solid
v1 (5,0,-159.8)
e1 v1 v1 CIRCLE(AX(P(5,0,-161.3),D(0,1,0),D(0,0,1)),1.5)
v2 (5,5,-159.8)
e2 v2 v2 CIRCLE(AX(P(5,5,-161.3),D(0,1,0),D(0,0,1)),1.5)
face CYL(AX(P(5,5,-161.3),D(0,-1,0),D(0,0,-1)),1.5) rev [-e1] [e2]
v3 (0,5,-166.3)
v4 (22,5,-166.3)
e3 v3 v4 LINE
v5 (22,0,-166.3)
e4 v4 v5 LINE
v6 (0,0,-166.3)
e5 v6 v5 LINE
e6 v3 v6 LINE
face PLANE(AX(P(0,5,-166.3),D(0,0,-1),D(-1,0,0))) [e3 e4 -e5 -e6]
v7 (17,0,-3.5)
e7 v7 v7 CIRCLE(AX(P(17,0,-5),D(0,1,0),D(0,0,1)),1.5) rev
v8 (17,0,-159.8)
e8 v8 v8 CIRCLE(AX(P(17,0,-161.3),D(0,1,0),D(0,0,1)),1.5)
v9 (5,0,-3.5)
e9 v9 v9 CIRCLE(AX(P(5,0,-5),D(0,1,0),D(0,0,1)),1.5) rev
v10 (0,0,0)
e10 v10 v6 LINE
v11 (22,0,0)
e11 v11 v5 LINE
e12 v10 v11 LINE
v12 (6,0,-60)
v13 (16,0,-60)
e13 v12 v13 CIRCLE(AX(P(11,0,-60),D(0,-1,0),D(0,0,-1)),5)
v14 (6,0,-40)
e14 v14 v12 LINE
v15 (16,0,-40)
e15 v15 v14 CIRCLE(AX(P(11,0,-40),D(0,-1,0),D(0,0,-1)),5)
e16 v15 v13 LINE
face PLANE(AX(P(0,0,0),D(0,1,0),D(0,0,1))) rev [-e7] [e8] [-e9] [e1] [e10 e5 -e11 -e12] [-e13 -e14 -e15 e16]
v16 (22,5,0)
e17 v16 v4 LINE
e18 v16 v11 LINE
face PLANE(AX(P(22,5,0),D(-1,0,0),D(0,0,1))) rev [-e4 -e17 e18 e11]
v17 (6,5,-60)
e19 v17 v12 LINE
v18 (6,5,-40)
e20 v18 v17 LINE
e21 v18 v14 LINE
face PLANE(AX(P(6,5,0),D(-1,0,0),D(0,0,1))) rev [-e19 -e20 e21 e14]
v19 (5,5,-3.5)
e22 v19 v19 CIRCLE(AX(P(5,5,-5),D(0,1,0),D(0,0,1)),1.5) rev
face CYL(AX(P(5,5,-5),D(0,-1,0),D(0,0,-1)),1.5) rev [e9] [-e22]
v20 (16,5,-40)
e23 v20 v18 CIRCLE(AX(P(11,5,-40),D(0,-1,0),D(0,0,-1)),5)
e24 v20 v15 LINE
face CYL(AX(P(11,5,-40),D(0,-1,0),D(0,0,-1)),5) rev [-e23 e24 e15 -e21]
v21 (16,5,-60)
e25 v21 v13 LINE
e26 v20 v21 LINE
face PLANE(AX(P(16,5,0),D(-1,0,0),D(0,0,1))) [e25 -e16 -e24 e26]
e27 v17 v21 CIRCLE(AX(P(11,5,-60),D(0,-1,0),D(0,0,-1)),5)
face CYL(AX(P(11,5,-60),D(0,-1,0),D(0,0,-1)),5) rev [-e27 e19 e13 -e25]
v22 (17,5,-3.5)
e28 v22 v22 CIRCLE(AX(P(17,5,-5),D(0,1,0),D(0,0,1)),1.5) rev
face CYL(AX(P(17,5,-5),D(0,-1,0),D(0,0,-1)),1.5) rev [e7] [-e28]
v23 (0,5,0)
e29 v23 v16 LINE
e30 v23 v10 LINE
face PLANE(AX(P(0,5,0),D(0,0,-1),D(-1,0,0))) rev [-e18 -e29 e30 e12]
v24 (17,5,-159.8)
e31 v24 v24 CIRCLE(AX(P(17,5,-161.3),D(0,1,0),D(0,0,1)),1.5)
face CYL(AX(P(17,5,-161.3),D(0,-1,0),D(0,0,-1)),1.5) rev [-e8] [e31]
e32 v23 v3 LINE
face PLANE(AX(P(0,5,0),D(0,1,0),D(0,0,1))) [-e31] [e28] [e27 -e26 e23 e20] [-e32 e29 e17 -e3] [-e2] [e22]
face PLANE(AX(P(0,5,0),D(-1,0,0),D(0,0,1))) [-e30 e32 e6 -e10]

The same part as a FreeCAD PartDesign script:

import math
import FreeCAD as App
import Part
import Sketcher

doc = App.newDocument("Part")
body = doc.addObject("PartDesign::Body", "Body")

sketch1 = body.newObject("Sketcher::SketchObject", "Sketch")
sketch1.AttachmentSupport = (doc.getObject("XZ_Plane"), [""])
sketch1.MapMode = "FlatFace"
sketch1.addGeometry([
    Part.LineSegment(App.Vector(0, -166.3, 0), App.Vector(0, 0, 0)),
    Part.LineSegment(App.Vector(0, 0, 0), App.Vector(22, 0, 0)),
    Part.LineSegment(App.Vector(22, 0, 0), App.Vector(22, -166.3, 0)),
    Part.LineSegment(App.Vector(22, -166.3, 0), App.Vector(0, -166.3, 0)),
    Part.Circle(App.Vector(5, -5, 0), App.Vector(0, 0, 1), 1.5),
    Part.Circle(App.Vector(17, -5, 0), App.Vector(0, 0, 1), 1.5),
    Part.Circle(App.Vector(5, -161.3, 0), App.Vector(0, 0, 1), 1.5),
    Part.Circle(App.Vector(17, -161.3, 0), App.Vector(0, 0, 1), 1.5),
], False)
sketch1.addConstraint([
    Sketcher.Constraint("Coincident", 0, 2, 1, 1),
    Sketcher.Constraint("Coincident", 1, 2, 2, 1),
    Sketcher.Constraint("Coincident", 2, 2, 3, 1),
    Sketcher.Constraint("Coincident", 3, 2, 0, 1),
    Sketcher.Constraint("Vertical", 0),
    Sketcher.Constraint("Horizontal", 1),
    Sketcher.Constraint("Vertical", 2),
    Sketcher.Constraint("Horizontal", 3),
    Sketcher.Constraint("Coincident", 0, 2, -1, 1),
    Sketcher.Constraint("Equal", 4, 5),
    Sketcher.Constraint("Equal", 5, 6),
    Sketcher.Constraint("Equal", 6, 7),
    Sketcher.Constraint("Horizontal", 4, 3, 5, 3),
    Sketcher.Constraint("Horizontal", 6, 3, 7, 3),
    Sketcher.Constraint("Vertical", 4, 3, 6, 3),
    Sketcher.Constraint("Vertical", 5, 3, 7, 3),
    Sketcher.Constraint("Diameter", 4, 3.0),
    Sketcher.Constraint("DistanceX", 1, 1, 1, 2, 22.0),
    Sketcher.Constraint("DistanceY", 0, 1, 0, 2, 166.3),
    Sketcher.Constraint("DistanceX", -1, 1, 4, 3, 5.0),
    Sketcher.Constraint("DistanceY", 4, 3, -1, 1, 5.0),
    Sketcher.Constraint("DistanceX", -1, 1, 5, 3, 17.0),
    Sketcher.Constraint("DistanceY", 2, 2, 7, 3, 5.0),
])
pad1 = body.newObject("PartDesign::Pad", "Pad")
pad1.Profile = sketch1
pad1.Length = 5
pad1.Reversed = True

sketch2 = body.newObject("Sketcher::SketchObject", "Sketch001")
sketch2.AttachmentSupport = (doc.getObject("XZ_Plane"), [""])
sketch2.MapMode = "FlatFace"
sketch2.addGeometry([
    Part.LineSegment(App.Vector(16, -60, 0), App.Vector(16, -40, 0)),
    Part.ArcOfCircle(Part.Circle(App.Vector(11, -40, 0), App.Vector(0, 0, 1), 5), math.radians(0), math.radians(180)),
    Part.LineSegment(App.Vector(6, -40, 0), App.Vector(6, -60, 0)),
    Part.ArcOfCircle(Part.Circle(App.Vector(11, -60, 0), App.Vector(0, 0, 1), 5), math.radians(180), math.radians(360)),
], False)
sketch2.addConstraint([
    Sketcher.Constraint("Tangent", 0, 2, 1, 1),
    Sketcher.Constraint("Tangent", 1, 2, 2, 1),
    Sketcher.Constraint("Tangent", 2, 2, 3, 1),
    Sketcher.Constraint("Tangent", 3, 2, 0, 1),
    Sketcher.Constraint("Vertical", 0),
    Sketcher.Constraint("Vertical", 2),
    Sketcher.Constraint("Radius", 1, 5.0),
    Sketcher.Constraint("DistanceY", 0, 1, 0, 2, 20.0),
    Sketcher.Constraint("DistanceX", -1, 1, 1, 3, 11.0),
    Sketcher.Constraint("DistanceY", 1, 3, -1, 1, 40.0),
])
pocket1 = body.newObject("PartDesign::Pocket", "Pocket")
pocket1.Profile = sketch2
pocket1.Length = 5

doc.recompute()
